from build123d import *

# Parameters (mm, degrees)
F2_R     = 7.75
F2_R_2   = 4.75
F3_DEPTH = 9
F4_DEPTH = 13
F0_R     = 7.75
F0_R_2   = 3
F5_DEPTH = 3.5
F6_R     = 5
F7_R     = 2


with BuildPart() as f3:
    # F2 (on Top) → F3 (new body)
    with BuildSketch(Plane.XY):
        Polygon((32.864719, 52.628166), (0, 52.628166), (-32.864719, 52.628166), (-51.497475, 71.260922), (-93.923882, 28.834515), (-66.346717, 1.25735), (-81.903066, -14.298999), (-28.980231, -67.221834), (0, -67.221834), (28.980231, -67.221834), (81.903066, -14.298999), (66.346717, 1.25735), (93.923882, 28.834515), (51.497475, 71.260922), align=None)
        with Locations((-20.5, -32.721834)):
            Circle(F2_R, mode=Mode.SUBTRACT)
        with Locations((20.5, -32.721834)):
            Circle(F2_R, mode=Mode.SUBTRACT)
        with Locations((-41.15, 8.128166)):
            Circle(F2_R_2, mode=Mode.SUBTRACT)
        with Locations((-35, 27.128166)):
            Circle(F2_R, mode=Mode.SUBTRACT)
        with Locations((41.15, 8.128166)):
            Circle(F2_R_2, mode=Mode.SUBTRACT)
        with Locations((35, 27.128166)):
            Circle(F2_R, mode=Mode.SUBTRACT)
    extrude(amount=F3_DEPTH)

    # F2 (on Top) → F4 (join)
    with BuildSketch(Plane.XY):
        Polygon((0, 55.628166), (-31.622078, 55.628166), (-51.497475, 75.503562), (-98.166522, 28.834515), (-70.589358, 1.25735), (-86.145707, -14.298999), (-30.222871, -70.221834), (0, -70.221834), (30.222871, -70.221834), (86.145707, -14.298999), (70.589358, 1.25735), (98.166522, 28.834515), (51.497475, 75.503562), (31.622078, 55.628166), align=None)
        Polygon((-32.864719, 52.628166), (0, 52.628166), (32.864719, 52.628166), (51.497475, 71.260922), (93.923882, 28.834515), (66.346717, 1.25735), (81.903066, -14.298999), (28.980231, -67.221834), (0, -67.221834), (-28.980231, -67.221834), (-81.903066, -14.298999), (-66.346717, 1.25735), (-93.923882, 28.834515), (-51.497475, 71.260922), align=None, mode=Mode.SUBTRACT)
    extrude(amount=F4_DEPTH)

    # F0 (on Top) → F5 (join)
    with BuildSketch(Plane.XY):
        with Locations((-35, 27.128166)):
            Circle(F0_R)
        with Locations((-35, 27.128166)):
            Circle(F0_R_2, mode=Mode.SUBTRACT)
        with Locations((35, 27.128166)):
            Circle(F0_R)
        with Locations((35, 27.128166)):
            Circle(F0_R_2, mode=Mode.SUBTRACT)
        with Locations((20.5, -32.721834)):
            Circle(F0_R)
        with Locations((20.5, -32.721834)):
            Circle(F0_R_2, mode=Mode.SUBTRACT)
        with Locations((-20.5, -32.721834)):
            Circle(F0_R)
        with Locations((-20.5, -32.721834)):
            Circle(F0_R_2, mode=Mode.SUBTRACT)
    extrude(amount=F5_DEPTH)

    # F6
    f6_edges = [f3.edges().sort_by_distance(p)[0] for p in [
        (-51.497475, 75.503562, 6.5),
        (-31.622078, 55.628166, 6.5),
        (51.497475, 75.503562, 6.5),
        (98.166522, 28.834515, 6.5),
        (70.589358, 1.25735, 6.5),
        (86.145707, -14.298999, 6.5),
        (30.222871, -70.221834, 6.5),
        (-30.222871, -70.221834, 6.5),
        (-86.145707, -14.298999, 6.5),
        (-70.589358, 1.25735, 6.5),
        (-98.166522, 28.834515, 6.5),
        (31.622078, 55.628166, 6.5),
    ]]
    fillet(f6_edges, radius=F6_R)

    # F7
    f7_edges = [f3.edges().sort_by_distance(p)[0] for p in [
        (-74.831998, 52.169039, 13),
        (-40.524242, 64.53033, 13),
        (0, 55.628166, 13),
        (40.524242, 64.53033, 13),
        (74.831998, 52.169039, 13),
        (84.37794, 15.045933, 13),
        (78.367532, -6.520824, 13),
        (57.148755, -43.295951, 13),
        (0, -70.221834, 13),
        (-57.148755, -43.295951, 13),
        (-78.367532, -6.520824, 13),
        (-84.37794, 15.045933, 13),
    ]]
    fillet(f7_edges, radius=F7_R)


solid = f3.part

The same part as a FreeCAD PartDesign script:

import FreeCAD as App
import Part
import Sketcher
Q = App.Units.Quantity


def edges_at(feature, points):
    """Names of the edges that pass closest to the given points."""
    edges = feature.Shape.Edges
    near = lambda p: min(range(len(edges)), key=lambda i: edges[i].distToShape(Part.Vertex(*p))[0])
    return sorted({f"Edge{near(p) + 1}" for p in points})


def add_polygon(sketch, points):
    """Adds a closed chain of lines whose ends are joined by coincident constraints."""
    first, n = sketch.GeometryCount, len(points)
    for a, b in zip(points, points[1:] + points[:1]):
        sketch.addGeometry(Part.LineSegment(App.Vector(*a, 0), App.Vector(*b, 0)), False)
    for i in range(n):
        sketch.addConstraint(Sketcher.Constraint("Coincident", first + i, 2, first + (i + 1) % n, 1))

doc = App.newDocument("Part")
body = doc.addObject("PartDesign::Body", "Body")

# Sketch on XY plane
sketch1 = body.newObject("Sketcher::SketchObject", "Sketch")
sketch1.AttachmentSupport = (doc.getObject("XY_Plane"), [""])
sketch1.MapMode = "FlatFace"
add_polygon(sketch1, [(32.9, 52.6), (-32.9, 52.6), (-51.5, 71.3), (-93.9, 28.8), (-66.3, 1.3), (-81.9, -14.3), (-29, -67.2), (29, -67.2), (81.9, -14.3), (66.3, 1.3), (93.9, 28.8), (51.5, 71.3)])  # lines 0-11
sketch1.addGeometry(Part.Circle(App.Vector(-20.5, -32.7, 0), App.Vector(0, 0, 1), 7.8), False)  # 12
sketch1.addGeometry(Part.Circle(App.Vector(20.5, -32.7, 0), App.Vector(0, 0, 1), 7.8), False)  # 13
sketch1.addGeometry(Part.Circle(App.Vector(-41.1, 8.1, 0), App.Vector(0, 0, 1), 4.8), False)  # 14
sketch1.addGeometry(Part.Circle(App.Vector(-35, 27.1, 0), App.Vector(0, 0, 1), 7.8), False)  # 15
sketch1.addGeometry(Part.Circle(App.Vector(41.1, 8.1, 0), App.Vector(0, 0, 1), 4.8), False)  # 16
sketch1.addGeometry(Part.Circle(App.Vector(35, 27.1, 0), App.Vector(0, 0, 1), 7.8), False)  # 17
sketch1.addConstraint([
    Sketcher.Constraint("Horizontal", 0),
    Sketcher.Constraint("Horizontal", 6),
    Sketcher.Constraint("Equal", 12, 13),
    Sketcher.Constraint("Equal", 13, 15),
    Sketcher.Constraint("Equal", 14, 16),
    Sketcher.Constraint("Equal", 15, 17),
    Sketcher.Constraint("Symmetric", 12, 3, 13, 3, -2),
    Sketcher.Constraint("Symmetric", 14, 3, 16, 3, -2),
    Sketcher.Constraint("Symmetric", 15, 3, 17, 3, -2),
    Sketcher.Constraint("Symmetric", 4, 2, 7, 2, -2),
    Sketcher.Constraint("Symmetric", 3, 2, 8, 2, -2),
    Sketcher.Constraint("Symmetric", 2, 2, 9, 2, -2),
    Sketcher.Constraint("Symmetric", 1, 2, 10, 2, -2),
    Sketcher.Constraint("Perpendicular", 1, 2),
    Sketcher.Constraint("Perpendicular", 2, 3),
    Sketcher.Constraint("Perpendicular", 3, 4),
    Sketcher.Constraint("Perpendicular", 4, 5),
    Sketcher.Constraint("Perpendicular", 5, 7),
    Sketcher.Constraint("Perpendicular", 7, 8),
    Sketcher.Constraint("Perpendicular", 10, 11),
    Sketcher.Constraint("Diameter", 12, Q("15.5 mm")),
    Sketcher.Constraint("Diameter", 14, Q("9.5 mm")),
    Sketcher.Constraint("Distance", 2, Q("60 mm")),
    Sketcher.Constraint("Distance", 3, Q("39.000001 mm")),
    Sketcher.Constraint("Distance", 4, Q("22 mm")),
    Sketcher.Constraint("DistanceX", 15, 3, -1, 1, Q("35 mm")),
    Sketcher.Constraint("DistanceX", 12, 3, 13, 3, Q("41 mm")),
    Sketcher.Constraint("DistanceY", 14, 3, 15, 3, Q("19 mm")),
    Sketcher.Constraint("DistanceX", 14, 3, 16, 3, Q("82.3 mm")),
    Sketcher.Constraint("DistanceY", 15, 3, 0, 2, Q("25.5 mm")),
    Sketcher.Constraint("DistanceY", 5, 2, 12, 3, Q("34.5 mm")),
    Sketcher.Constraint("DistanceY", 12, 3, 14, 3, Q("40.85 mm")),
    Sketcher.Constraint("DistanceY", 4, 2, -1, 1, Q("14.298999 mm")),
    Sketcher.Constraint("DistanceX", 0, 2, 0, 1, Q("65.729438 mm")),
    Sketcher.Constraint("Distance", 5, Q("74.844191 mm")),
])
pad1 = body.newObject("PartDesign::Pad", "Pad")
pad1.Profile = sketch1
pad1.Length = 9

# Sketch on XY plane
sketch2 = body.newObject("Sketcher::SketchObject", "Sketch001")
sketch2.AttachmentSupport = (doc.getObject("XY_Plane"), [""])
sketch2.MapMode = "FlatFace"
add_polygon(sketch2, [(-32, 56), (-51, 76), (-98, 29), (-71, 1), (-86, -14), (-30, -70), (30, -70), (86, -14), (71, 1), (98, 29), (51, 76), (32, 56)])  # lines 0-11
add_polygon(sketch2, [(-51, 71), (-33, 53), (33, 53), (51, 71), (94, 29), (66, 1), (82, -14), (29, -67), (-29, -67), (-82, -14), (-66, 1), (-94, 29)])  # lines 12-23
sketch2.addConstraint([
    Sketcher.Constraint("Horizontal", 5),
    Sketcher.Constraint("Horizontal", 11),
    Sketcher.Constraint("Horizontal", 13),
    Sketcher.Constraint("Horizontal", 19),
    Sketcher.Constraint("Symmetric", 3, 2, 6, 2, -2),
    Sketcher.Constraint("Symmetric", 2, 2, 7, 2, -2),
    Sketcher.Constraint("Symmetric", 1, 2, 8, 2, -2),
    Sketcher.Constraint("Symmetric", 0, 2, 9, 2, -2),
    Sketcher.Constraint("Symmetric", 17, 2, 20, 2, -2),
    Sketcher.Constraint("Symmetric", 16, 2, 21, 2, -2),
    Sketcher.Constraint("Symmetric", 15, 2, 22, 2, -2),
    Sketcher.Constraint("Symmetric", 14, 2, 23, 2, -2),
    Sketcher.Constraint("Perpendicular", 0, 1),
    Sketcher.Constraint("Perpendicular", 1, 2),
    Sketcher.Constraint("Perpendicular", 2, 3),
    Sketcher.Constraint("Perpendicular", 3, 4),
    Sketcher.Constraint("Perpendicular", 4, 6),
    Sketcher.Constraint("Perpendicular", 6, 7),
    Sketcher.Constraint("Perpendicular", 9, 10),
    Sketcher.Constraint("Perpendicular", 10, 12),
    Sketcher.Constraint("Perpendicular", 12, 14),
    Sketcher.Constraint("Perpendicular", 14, 15),
    Sketcher.Constraint("Perpendicular", 15, 16),
    Sketcher.Constraint("Perpendicular", 16, 17),
    Sketcher.Constraint("Perpendicular", 17, 18),
    Sketcher.Constraint("Perpendicular", 18, 20),
    Sketcher.Constraint("Horizontal", 8, 2, 15, 2),
    Sketcher.Constraint("Horizontal", 7, 2, 16, 2),
    Sketcher.Constraint("Horizontal", 6, 2, 17, 2),
    Sketcher.Constraint("Vertical", 9, 2, 14, 2),
    Sketcher.Constraint("Distance", 1, Q("65.999999 mm")),
    Sketcher.Constraint("Distance", 2, Q("39 mm")),
    Sketcher.Constraint("Distance", 3, Q("22 mm")),
    Sketcher.Constraint("Distance", 15, Q("60 mm")),
    Sketcher.Constraint("DistanceY", 12, 2, 11, 2, Q("3 mm")),
    Sketcher.Constraint("DistanceY", 5, 2, 18, 2, Q("3 mm")),
    Sketcher.Constraint("DistanceY", 3, 2, -1, 1, Q("14.298999 mm")),
    Sketcher.Constraint("DistanceX", 13, 1, 13, 2, Q("65.729438 mm")),
    Sketcher.Constraint("Distance", 18, Q("74.844191 mm")),
    Sketcher.Constraint("DistanceX", 5, 1, 5, 2, Q("60.445742 mm")),
])
pad2 = body.newObject("PartDesign::Pad", "Pad001")
pad2.Profile = sketch2
pad2.Length = 13

# Sketch on XY plane
sketch3 = body.newObject("Sketcher::SketchObject", "Sketch002")
sketch3.AttachmentSupport = (doc.getObject("XY_Plane"), [""])
sketch3.MapMode = "FlatFace"
sketch3.addGeometry([
    Part.Circle(App.Vector(-35, 27.1, 0), App.Vector(0, 0, 1), 7.8),  # 0
    Part.Circle(App.Vector(-35, 27.1, 0), App.Vector(0, 0, 1), 3),  # 1
    Part.Circle(App.Vector(35, 27.1, 0), App.Vector(0, 0, 1), 7.8),  # 2
    Part.Circle(App.Vector(35, 27.1, 0), App.Vector(0, 0, 1), 3),  # 3
    Part.Circle(App.Vector(20.5, -32.7, 0), App.Vector(0, 0, 1), 7.8),  # 4
    Part.Circle(App.Vector(20.5, -32.7, 0), App.Vector(0, 0, 1), 3),  # 5
    Part.Circle(App.Vector(-20.5, -32.7, 0), App.Vector(0, 0, 1), 7.8),  # 6
    Part.Circle(App.Vector(-20.5, -32.7, 0), App.Vector(0, 0, 1), 3),  # 7
], False)
sketch3.addConstraint([
    Sketcher.Constraint("Coincident", 1, 3, 0, 3),
    Sketcher.Constraint("Coincident", 3, 3, 2, 3),
    Sketcher.Constraint("Coincident", 5, 3, 4, 3),
    Sketcher.Constraint("Coincident", 7, 3, 6, 3),
    Sketcher.Constraint("Equal", 0, 2),
    Sketcher.Constraint("Equal", 1, 3),
    Sketcher.Constraint("Equal", 2, 4),
    Sketcher.Constraint("Equal", 3, 5),
    Sketcher.Constraint("Equal", 4, 6),
    Sketcher.Constraint("Equal", 5, 7),
    Sketcher.Constraint("Symmetric", 0, 3, 2, 3, -2),
    Sketcher.Constraint("Symmetric", 4, 3, 6, 3, -2),
    Sketcher.Constraint("Diameter", 1, Q("6 mm")),
    Sketcher.Constraint("Diameter", 0, Q("15.5 mm")),
    Sketcher.Constraint("DistanceX", 0, 3, -1, 1, Q("35 mm")),
    Sketcher.Constraint("DistanceX", 6, 3, 4, 3, Q("41 mm")),
    Sketcher.Constraint("DistanceY", 4, 3, 2, 3, Q("59.85 mm")),
    Sketcher.Constraint("DistanceY", -1, 1, 0, 3, Q("27.128166 mm")),
])
pad3 = body.newObject("PartDesign::Pad", "Pad002")
pad3.Profile = sketch3
pad3.Length = 3.5
doc.recompute()

fillet = body.newObject("PartDesign::Fillet", "Fillet")
fillet.Base = (pad3, edges_at(pad3, [
    (-51.497, 75.504, 6.5),
    (-31.622, 55.628, 6.5),
    (51.497, 75.504, 6.5),
    (98.167, 28.835, 6.5),
    (70.589, 1.257, 6.5),
    (86.146, -14.299, 6.5),
    (30.223, -70.222, 6.5),
    (-30.223, -70.222, 6.5),
    (-86.146, -14.299, 6.5),
    (-70.589, 1.257, 6.5),
    (-98.167, 28.835, 6.5),
    (31.622, 55.628, 6.5),
]))
fillet.Radius = 5
doc.recompute()

fillet2 = body.newObject("PartDesign::Fillet", "Fillet001")
fillet2.Base = (fillet, edges_at(fillet, [
    (-74.832, 52.169, 13),
    (-40.524, 64.53, 13),
    (0, 55.628, 13),
    (40.524, 64.53, 13),
    (74.832, 52.169, 13),
    (84.378, 15.046, 13),
    (78.368, -6.521, 13),
    (57.149, -43.296, 13),
    (0, -70.222, 13),
    (-57.149, -43.296, 13),
    (-78.368, -6.521, 13),
    (-84.378, 15.046, 13),
]))
fillet2.Radius = 2

doc.recompute()
